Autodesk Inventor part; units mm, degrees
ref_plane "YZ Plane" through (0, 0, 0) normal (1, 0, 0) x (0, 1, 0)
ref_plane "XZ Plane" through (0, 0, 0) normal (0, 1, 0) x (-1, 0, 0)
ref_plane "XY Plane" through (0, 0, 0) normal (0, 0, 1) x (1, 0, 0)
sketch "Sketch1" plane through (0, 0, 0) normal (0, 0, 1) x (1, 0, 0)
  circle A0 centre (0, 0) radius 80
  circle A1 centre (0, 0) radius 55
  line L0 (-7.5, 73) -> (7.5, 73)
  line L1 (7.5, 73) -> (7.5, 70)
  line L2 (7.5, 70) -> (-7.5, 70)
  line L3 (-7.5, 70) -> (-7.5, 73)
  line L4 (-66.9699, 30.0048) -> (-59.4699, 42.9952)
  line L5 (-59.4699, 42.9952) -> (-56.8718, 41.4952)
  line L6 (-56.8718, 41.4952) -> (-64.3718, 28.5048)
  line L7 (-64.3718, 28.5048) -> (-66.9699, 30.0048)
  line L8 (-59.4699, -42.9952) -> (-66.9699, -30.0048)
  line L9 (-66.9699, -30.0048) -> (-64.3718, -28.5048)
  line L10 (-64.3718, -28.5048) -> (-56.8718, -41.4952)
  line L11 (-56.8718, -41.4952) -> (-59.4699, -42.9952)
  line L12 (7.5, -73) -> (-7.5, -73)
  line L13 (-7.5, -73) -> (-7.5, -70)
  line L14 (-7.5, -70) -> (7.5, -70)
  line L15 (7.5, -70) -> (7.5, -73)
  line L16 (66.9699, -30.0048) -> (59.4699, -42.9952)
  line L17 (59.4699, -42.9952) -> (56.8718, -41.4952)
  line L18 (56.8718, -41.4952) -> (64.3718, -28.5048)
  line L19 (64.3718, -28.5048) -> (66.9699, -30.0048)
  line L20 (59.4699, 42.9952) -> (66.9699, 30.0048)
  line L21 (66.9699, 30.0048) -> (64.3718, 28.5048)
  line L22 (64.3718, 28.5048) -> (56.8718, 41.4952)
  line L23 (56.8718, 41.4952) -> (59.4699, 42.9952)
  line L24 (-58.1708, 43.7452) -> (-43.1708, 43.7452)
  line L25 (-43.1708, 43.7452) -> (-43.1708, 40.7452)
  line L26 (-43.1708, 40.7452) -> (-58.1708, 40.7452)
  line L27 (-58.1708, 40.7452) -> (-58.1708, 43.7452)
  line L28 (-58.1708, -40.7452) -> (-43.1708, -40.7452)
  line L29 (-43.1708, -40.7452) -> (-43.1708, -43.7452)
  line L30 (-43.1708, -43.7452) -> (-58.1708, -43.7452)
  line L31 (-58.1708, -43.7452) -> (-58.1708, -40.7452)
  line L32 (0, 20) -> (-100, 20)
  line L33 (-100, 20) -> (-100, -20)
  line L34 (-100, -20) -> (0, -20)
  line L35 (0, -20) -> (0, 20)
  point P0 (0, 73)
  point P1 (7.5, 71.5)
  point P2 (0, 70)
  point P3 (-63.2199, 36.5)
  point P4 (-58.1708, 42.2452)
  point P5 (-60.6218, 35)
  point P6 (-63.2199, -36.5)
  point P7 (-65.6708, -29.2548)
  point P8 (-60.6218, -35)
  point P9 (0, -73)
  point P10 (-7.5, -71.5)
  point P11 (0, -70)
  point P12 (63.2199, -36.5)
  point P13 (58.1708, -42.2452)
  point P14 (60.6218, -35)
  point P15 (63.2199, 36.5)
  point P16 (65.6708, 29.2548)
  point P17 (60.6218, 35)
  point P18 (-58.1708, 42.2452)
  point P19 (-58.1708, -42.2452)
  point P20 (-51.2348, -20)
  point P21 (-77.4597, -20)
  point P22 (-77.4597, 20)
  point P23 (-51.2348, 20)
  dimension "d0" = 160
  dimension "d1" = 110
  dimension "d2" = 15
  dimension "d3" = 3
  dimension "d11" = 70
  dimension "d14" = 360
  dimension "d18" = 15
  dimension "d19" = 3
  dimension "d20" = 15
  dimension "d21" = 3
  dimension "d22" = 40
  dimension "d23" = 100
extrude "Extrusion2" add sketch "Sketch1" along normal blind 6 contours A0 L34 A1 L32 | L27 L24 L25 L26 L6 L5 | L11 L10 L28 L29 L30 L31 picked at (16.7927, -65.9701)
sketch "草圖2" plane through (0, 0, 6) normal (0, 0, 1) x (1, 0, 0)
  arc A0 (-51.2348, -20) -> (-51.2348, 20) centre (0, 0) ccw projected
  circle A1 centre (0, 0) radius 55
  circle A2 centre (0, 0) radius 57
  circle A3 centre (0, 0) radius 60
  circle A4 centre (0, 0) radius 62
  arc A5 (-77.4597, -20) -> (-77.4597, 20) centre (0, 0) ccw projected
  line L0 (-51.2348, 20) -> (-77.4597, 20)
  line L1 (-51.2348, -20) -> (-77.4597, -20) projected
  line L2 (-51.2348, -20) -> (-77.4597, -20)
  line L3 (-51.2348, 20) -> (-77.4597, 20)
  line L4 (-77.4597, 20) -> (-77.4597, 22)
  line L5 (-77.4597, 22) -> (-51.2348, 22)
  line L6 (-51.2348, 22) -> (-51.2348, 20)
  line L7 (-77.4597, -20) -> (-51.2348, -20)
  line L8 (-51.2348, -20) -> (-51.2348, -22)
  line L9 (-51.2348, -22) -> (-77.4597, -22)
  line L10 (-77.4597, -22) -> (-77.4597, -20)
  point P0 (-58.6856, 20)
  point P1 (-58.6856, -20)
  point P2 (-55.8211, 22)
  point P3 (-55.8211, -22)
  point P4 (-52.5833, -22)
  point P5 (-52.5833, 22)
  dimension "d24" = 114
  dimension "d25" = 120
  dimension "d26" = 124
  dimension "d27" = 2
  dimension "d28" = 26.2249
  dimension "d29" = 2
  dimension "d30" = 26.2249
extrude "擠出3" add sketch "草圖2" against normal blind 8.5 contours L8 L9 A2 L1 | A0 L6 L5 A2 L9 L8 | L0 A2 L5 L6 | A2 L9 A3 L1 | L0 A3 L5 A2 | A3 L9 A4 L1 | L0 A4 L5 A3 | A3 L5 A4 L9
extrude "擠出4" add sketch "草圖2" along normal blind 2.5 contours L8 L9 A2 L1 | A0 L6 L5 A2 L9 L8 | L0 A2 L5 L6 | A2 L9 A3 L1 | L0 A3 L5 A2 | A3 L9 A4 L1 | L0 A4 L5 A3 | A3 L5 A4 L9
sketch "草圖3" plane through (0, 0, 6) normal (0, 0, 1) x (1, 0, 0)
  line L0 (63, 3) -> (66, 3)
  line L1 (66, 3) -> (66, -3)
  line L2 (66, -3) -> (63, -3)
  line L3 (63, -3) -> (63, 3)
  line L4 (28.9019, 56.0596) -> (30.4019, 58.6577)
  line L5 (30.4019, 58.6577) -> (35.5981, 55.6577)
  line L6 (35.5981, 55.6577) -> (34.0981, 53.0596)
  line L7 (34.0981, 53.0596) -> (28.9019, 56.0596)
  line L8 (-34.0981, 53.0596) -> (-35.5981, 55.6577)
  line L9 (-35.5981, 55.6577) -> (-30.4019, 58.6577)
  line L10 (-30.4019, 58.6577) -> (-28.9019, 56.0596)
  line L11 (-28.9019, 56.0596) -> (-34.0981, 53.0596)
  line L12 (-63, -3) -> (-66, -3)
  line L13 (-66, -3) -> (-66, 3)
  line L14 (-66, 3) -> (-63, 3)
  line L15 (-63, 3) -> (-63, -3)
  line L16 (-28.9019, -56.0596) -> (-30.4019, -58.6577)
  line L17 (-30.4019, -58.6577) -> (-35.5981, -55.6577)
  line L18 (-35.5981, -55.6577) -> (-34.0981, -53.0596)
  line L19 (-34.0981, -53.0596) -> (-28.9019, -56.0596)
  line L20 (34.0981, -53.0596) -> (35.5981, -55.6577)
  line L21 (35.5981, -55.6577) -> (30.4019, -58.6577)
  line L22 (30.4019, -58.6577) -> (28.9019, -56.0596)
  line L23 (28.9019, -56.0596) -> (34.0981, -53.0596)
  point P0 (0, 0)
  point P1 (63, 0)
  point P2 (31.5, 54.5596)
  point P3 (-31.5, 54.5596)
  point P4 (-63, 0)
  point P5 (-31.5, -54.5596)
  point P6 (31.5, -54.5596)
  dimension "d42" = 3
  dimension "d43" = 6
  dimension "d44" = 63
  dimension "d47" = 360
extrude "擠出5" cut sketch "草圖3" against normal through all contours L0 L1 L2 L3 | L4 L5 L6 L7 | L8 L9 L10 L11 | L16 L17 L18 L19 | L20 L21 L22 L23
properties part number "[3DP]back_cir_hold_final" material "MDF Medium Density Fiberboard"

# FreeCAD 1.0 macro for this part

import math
import FreeCAD as App
import Part
import Sketcher
from FreeCAD import Vector
Q = App.Units.Quantity


def add_polygon(sketch, points):
    """Adds a closed chain of lines whose ends are joined by coincident constraints."""
    first, n = sketch.GeometryCount, len(points)
    for a, b in zip(points, points[1:] + points[:1]):
        sketch.addGeometry(Part.LineSegment(App.Vector(*a, 0), App.Vector(*b, 0)), False)
    for i in range(n):
        sketch.addConstraint(Sketcher.Constraint("Coincident", first + i, 2, first + (i + 1) % n, 1))

doc = App.newDocument("Part")
params = doc.addObject("Spreadsheet::Sheet", "Params")
for row, (alias, value) in enumerate([
    ("sketch1_radius", "80 mm"),
    ("sketch1_radius2", "55 mm"),
    ("sketch1_width", "15 mm"),
    ("sketch1_height", "3 mm"),
    ("sketch1_length", "15 mm"),
    ("pad1_length", "6 mm"),
    ("sketch2_radius", "62 mm"),
    ("sketch2_radius2", "60 mm"),
    ("sketch2_radius3", "57 mm"),
    ("sketch2_radius4", "55 mm"),
    ("pad2_length", "8.5 mm"),
    ("sketch3_radius", "62 mm"),
    ("sketch3_radius2", "60 mm"),
    ("sketch3_radius3", "57 mm"),
    ("sketch3_radius4", "55 mm"),
    ("pad3_length", "2.5 mm"),
    ("sketch4_width", "3 mm"),
    ("sketch4_height", "6 mm"),
    ("sketch4_length", "3 mm"),
    ("sketch4_length2", "6 mm"),
], start=1):
    params.set(f"A{row}", alias)
    params.set(f"B{row}", "=" + value)
    params.setAlias(f"B{row}", alias)

body = doc.addObject("PartDesign::Body", "Body")

sketch1 = body.newObject("Sketcher::SketchObject", "Sketch")
sketch1.AttachmentSupport = (doc.getObject("XY_Plane"), [""])
sketch1.MapMode = "FlatFace"
sketch1.addGeometry(Part.ArcOfCircle(Part.Circle(Vector(0, 0, 0), Vector(0, 0, 1), 80), math.radians(-166), math.radians(166)), False)
sketch1.addGeometry(Part.LineSegment(Vector(-77.5, 20, 0), Vector(-51.2, 20, 0)), False)
sketch1.addGeometry(Part.ArcOfCircle(Part.Circle(Vector(0, 0, 0), Vector(0, 0, 1), 55), math.radians(-159), math.radians(159)), False)
sketch1.addGeometry(Part.LineSegment(Vector(-51.2, -20, 0), Vector(-77.5, -20, 0)), False)
add_polygon(sketch1, [(-59.5, -43), (-67, -30), (-64.4, -28.5), (-56.9, -41.5)])
add_polygon(sketch1, [(7.5, -70), (7.5, -73), (-7.5, -73), (-7.5, -70)])
add_polygon(sketch1, [(64.4, -28.5), (67, -30), (59.5, -43), (56.9, -41.5)])
add_polygon(sketch1, [(-64.4, 28.5), (-67, 30), (-59.5, 43), (-56.9, 41.5)])
add_polygon(sketch1, [(56.9, 41.5), (59.5, 43), (67, 30), (64.4, 28.5)])
add_polygon(sketch1, [(-7.5, 70), (-7.5, 73), (7.5, 73), (7.5, 70)])
sketch1.addConstraint(Sketcher.Constraint("Coincident", 0, 2, 1, 1))
sketch1.addConstraint(Sketcher.Constraint("Coincident", 1, 2, 2, 2))
sketch1.addConstraint(Sketcher.Constraint("Coincident", 2, 1, 3, 1))
sketch1.addConstraint(Sketcher.Constraint("Coincident", 3, 2, 0, 1))
sketch1.addConstraint(Sketcher.Constraint("Horizontal", 1))
sketch1.addConstraint(Sketcher.Constraint("Horizontal", 3))
sketch1.addConstraint(Sketcher.Constraint("Vertical", 8))
sketch1.addConstraint(Sketcher.Constraint("Horizontal", 9))
sketch1.addConstraint(Sketcher.Constraint("Vertical", 10))
sketch1.addConstraint(Sketcher.Constraint("Horizontal", 11))
sketch1.addConstraint(Sketcher.Constraint("Vertical", 24))
sketch1.addConstraint(Sketcher.Constraint("Horizontal", 25))
sketch1.addConstraint(Sketcher.Constraint("Vertical", 26))
sketch1.addConstraint(Sketcher.Constraint("Horizontal", 27))
sketch1.addConstraint(Sketcher.Constraint("Coincident", 0, 3, -1, 1))
sketch1.addConstraint(Sketcher.Constraint("Coincident", 2, 3, -1, 1))
sketch1.addConstraint(Sketcher.Constraint("Symmetric", 12, 2, 16, 2, -1, 1))
sketch1.addConstraint(Sketcher.Constraint("Symmetric", 13, 2, 17, 2, -1, 1))
sketch1.addConstraint(Sketcher.Constraint("Symmetric", 14, 2, 18, 2, -1, 1))
sketch1.addConstraint(Sketcher.Constraint("Symmetric", 15, 2, 19, 2, -1, 1))
sketch1.addConstraint(Sketcher.Constraint("Symmetric", 7, 2, 20, 2, -1, 1))
sketch1.addConstraint(Sketcher.Constraint("Symmetric", 4, 2, 21, 2, -1, 1))
sketch1.addConstraint(Sketcher.Constraint("Symmetric", 5, 2, 22, 2, -1, 1))
sketch1.addConstraint(Sketcher.Constraint("Symmetric", 6, 2, 23, 2, -1, 1))
sketch1.addConstraint(Sketcher.Constraint("Symmetric", 8, 2, 24, 2, -1, 1))
sketch1.addConstraint(Sketcher.Constraint("Symmetric", 10, 2, 26, 2, -1, 1))
sketch1.addConstraint(Sketcher.Constraint("Symmetric", 4, 2, 12, 2, -2))
sketch1.addConstraint(Sketcher.Constraint("Symmetric", 7, 2, 13, 2, -2))
sketch1.addConstraint(Sketcher.Constraint("Symmetric", 6, 2, 14, 2, -2))
sketch1.addConstraint(Sketcher.Constraint("Symmetric", 5, 2, 15, 2, -2))
sketch1.addConstraint(Sketcher.Constraint("Perpendicular", 4, 5))
sketch1.addConstraint(Sketcher.Constraint("Perpendicular", 5, 6))
sketch1.addConstraint(Sketcher.Constraint("Perpendicular", 6, 7))
sketch1.addConstraint(Sketcher.Constraint("Vertical", 1, 2, 2, 1))
sketch1.addConstraint(Sketcher.Constraint("Vertical", 10, 2, 24, 2))
sketch1.addConstraint(Sketcher.Constraint("Radius", 0, 80.0))
sketch1.addConstraint(Sketcher.Constraint("Radius", 2, 55.0))
sketch1.addConstraint(Sketcher.Constraint("DistanceX", 9, 2, 9, 1, 15.0))
sketch1.addConstraint(Sketcher.Constraint("DistanceY", 8, 2, 8, 1, 3.0))
sketch1.addConstraint(Sketcher.Constraint("Distance", 4, 15.0))
sketch1.addConstraint(Sketcher.Constraint("Distance", 5, 3.0))
sketch1.addConstraint(Sketcher.Constraint("DistanceY", 10, 2, -1, 1, 70.0))
sketch1.addConstraint(Sketcher.Constraint("DistanceY", 2, 1, 1, 2, 40.0))
sketch1.addConstraint(Sketcher.Constraint("DistanceY", 14, 2, 22, 2, 70.0))
sketch1.addConstraint(Sketcher.Constraint("Angle", 4, Q("120 deg")))
sketch1.addConstraint(Sketcher.Constraint("DistanceX", 4, 2, -1, 1, 66.97))
sketch1.setExpression("Constraints[59]", "Params.sketch1_radius")
sketch1.setExpression("Constraints[60]", "Params.sketch1_radius2")
sketch1.setExpression("Constraints[61]", "Params.sketch1_width")
sketch1.setExpression("Constraints[62]", "Params.sketch1_height")
sketch1.setExpression("Constraints[63]", "Params.sketch1_length")
pad1 = body.newObject("PartDesign::Pad", "Pad")
pad1.Profile = sketch1
pad1.setExpression("Length", "Params.pad1_length")

sketch2 = body.newObject("Sketcher::SketchObject", "Sketch001")
sketch2.AttachmentSupport = (doc.getObject("XY_Plane"), [""])
sketch2.MapMode = "FlatFace"
sketch2.AttachmentOffset = App.Placement(Vector(0, 0, 6), App.Rotation())
sketch2.addGeometry(Part.LineSegment(Vector(-51.2, -20, 0), Vector(-58.7, -20, 0)), False)
sketch2.addGeometry(Part.ArcOfCircle(Part.Circle(Vector(0, 0, 0), Vector(0, 0, 1), 62), math.radians(-161), math.radians(161)), False)
sketch2.addGeometry(Part.LineSegment(Vector(-58.7, 20, 0), Vector(-51.2, 20, 0)), False)
sketch2.addGeometry(Part.ArcOfCircle(Part.Circle(Vector(0, 0, 0), Vector(0, 0, 1), 55), math.radians(-159), math.radians(159)), False)
sketch2.addGeometry(Part.LineSegment(Vector(-52.6, 22, 0), Vector(-55.8, 22, 0)), False)
sketch2.addGeometry(Part.ArcOfCircle(Part.Circle(Vector(0, 0, 0), Vector(0, 0, 1), 60), math.radians(-158), math.radians(158)), False)
sketch2.addGeometry(Part.LineSegment(Vector(-55.8, -22, 0), Vector(-52.6, -22, 0)), False)
sketch2.addGeometry(Part.ArcOfCircle(Part.Circle(Vector(0, 0, 0), Vector(0, 0, 1), 57), math.radians(-157), math.radians(157)), False)
sketch2.addConstraint(Sketcher.Constraint("Coincident", 0, 2, 1, 1))
sketch2.addConstraint(Sketcher.Constraint("Coincident", 1, 2, 2, 1))
sketch2.addConstraint(Sketcher.Constraint("Coincident", 2, 2, 3, 2))
sketch2.addConstraint(Sketcher.Constraint("Coincident", 3, 1, 0, 1))
sketch2.addConstraint(Sketcher.Constraint("Coincident", 4, 2, 5, 2))
sketch2.addConstraint(Sketcher.Constraint("Coincident", 5, 1, 6, 1))
sketch2.addConstraint(Sketcher.Constraint("Coincident", 6, 2, 7, 1))
sketch2.addConstraint(Sketcher.Constraint("Coincident", 7, 2, 4, 1))
sketch2.addConstraint(Sketcher.Constraint("Horizontal", 0))
sketch2.addConstraint(Sketcher.Constraint("Horizontal", 2))
sketch2.addConstraint(Sketcher.Constraint("Horizontal", 4))
sketch2.addConstraint(Sketcher.Constraint("Horizontal", 6))
sketch2.addConstraint(Sketcher.Constraint("Coincident", 1, 3, -1, 1))
sketch2.addConstraint(Sketcher.Constraint("Coincident", 3, 3, -1, 1))
sketch2.addConstraint(Sketcher.Constraint("Coincident", 5, 3, -1, 1))
sketch2.addConstraint(Sketcher.Constraint("Coincident", 7, 3, -1, 1))
sketch2.addConstraint(Sketcher.Constraint("Vertical", 0, 2, 1, 2))
sketch2.addConstraint(Sketcher.Constraint("Vertical", 4, 2, 5, 1))
sketch2.addConstraint(Sketcher.Constraint("Radius", 1, 62.0))
sketch2.addConstraint(Sketcher.Constraint("Radius", 5, 60.0))
sketch2.addConstraint(Sketcher.Constraint("Radius", 7, 57.0))
sketch2.addConstraint(Sketcher.Constraint("Radius", 3, 55.0))
sketch2.addConstraint(Sketcher.Constraint("DistanceY", 1, 2, 4, 2, 2.0))
sketch2.addConstraint(Sketcher.Constraint("DistanceY", 0, 2, -1, 1, 20.0))
sketch2.setExpression("Constraints[18]", "Params.sketch2_radius")
sketch2.setExpression("Constraints[19]", "Params.sketch2_radius2")
sketch2.setExpression("Constraints[20]", "Params.sketch2_radius3")
sketch2.setExpression("Constraints[21]", "Params.sketch2_radius4")
pad2 = body.newObject("PartDesign::Pad", "Pad001")
pad2.Profile = sketch2
pad2.setExpression("Length", "Params.pad2_length")
pad2.Reversed = True

sketch3 = body.newObject("Sketcher::SketchObject", "Sketch002")
sketch3.AttachmentSupport = (doc.getObject("XY_Plane"), [""])
sketch3.MapMode = "FlatFace"
sketch3.AttachmentOffset = App.Placement(Vector(0, 0, 6), App.Rotation())
sketch3.addGeometry(Part.LineSegment(Vector(-51.2, -20, 0), Vector(-58.7, -20, 0)), False)
sketch3.addGeometry(Part.ArcOfCircle(Part.Circle(Vector(0, 0, 0), Vector(0, 0, 1), 62), math.radians(-161), math.radians(161)), False)
sketch3.addGeometry(Part.LineSegment(Vector(-58.7, 20, 0), Vector(-51.2, 20, 0)), False)
sketch3.addGeometry(Part.ArcOfCircle(Part.Circle(Vector(0, 0, 0), Vector(0, 0, 1), 55), math.radians(-159), math.radians(159)), False)
sketch3.addGeometry(Part.LineSegment(Vector(-52.6, 22, 0), Vector(-55.8, 22, 0)), False)
sketch3.addGeometry(Part.ArcOfCircle(Part.Circle(Vector(0, 0, 0), Vector(0, 0, 1), 60), math.radians(-158), math.radians(158)), False)
sketch3.addGeometry(Part.LineSegment(Vector(-55.8, -22, 0), Vector(-52.6, -22, 0)), False)
sketch3.addGeometry(Part.ArcOfCircle(Part.Circle(Vector(0, 0, 0), Vector(0, 0, 1), 57), math.radians(-157), math.radians(157)), False)
sketch3.addConstraint(Sketcher.Constraint("Coincident", 0, 2, 1, 1))
sketch3.addConstraint(Sketcher.Constraint("Coincident", 1, 2, 2, 1))
sketch3.addConstraint(Sketcher.Constraint("Coincident", 2, 2, 3, 2))
sketch3.addConstraint(Sketcher.Constraint("Coincident", 3, 1, 0, 1))
sketch3.addConstraint(Sketcher.Constraint("Coincident", 4, 2, 5, 2))
sketch3.addConstraint(Sketcher.Constraint("Coincident", 5, 1, 6, 1))
sketch3.addConstraint(Sketcher.Constraint("Coincident", 6, 2, 7, 1))
sketch3.addConstraint(Sketcher.Constraint("Coincident", 7, 2, 4, 1))
sketch3.addConstraint(Sketcher.Constraint("Horizontal", 0))
sketch3.addConstraint(Sketcher.Constraint("Horizontal", 2))
sketch3.addConstraint(Sketcher.Constraint("Horizontal", 4))
sketch3.addConstraint(Sketcher.Constraint("Horizontal", 6))
sketch3.addConstraint(Sketcher.Constraint("Coincident", 1, 3, -1, 1))
sketch3.addConstraint(Sketcher.Constraint("Coincident", 3, 3, -1, 1))
sketch3.addConstraint(Sketcher.Constraint("Coincident", 5, 3, -1, 1))
sketch3.addConstraint(Sketcher.Constraint("Coincident", 7, 3, -1, 1))
sketch3.addConstraint(Sketcher.Constraint("Vertical", 0, 2, 1, 2))
sketch3.addConstraint(Sketcher.Constraint("Vertical", 4, 2, 5, 1))
sketch3.addConstraint(Sketcher.Constraint("Radius", 1, 62.0))
sketch3.addConstraint(Sketcher.Constraint("Radius", 5, 60.0))
sketch3.addConstraint(Sketcher.Constraint("Radius", 7, 57.0))
sketch3.addConstraint(Sketcher.Constraint("Radius", 3, 55.0))
sketch3.addConstraint(Sketcher.Constraint("DistanceY", 1, 2, 4, 2, 2.0))
sketch3.addConstraint(Sketcher.Constraint("DistanceY", 0, 2, -1, 1, 20.0))
sketch3.setExpression("Constraints[18]", "Params.sketch3_radius")
sketch3.setExpression("Constraints[19]", "Params.sketch3_radius2")
sketch3.setExpression("Constraints[20]", "Params.sketch3_radius3")
sketch3.setExpression("Constraints[21]", "Params.sketch3_radius4")
pad3 = body.newObject("PartDesign::Pad", "Pad002")
pad3.Profile = sketch3
pad3.setExpression("Length", "Params.pad3_length")

sketch4 = body.newObject("Sketcher::SketchObject", "Sketch003")
sketch4.AttachmentSupport = (doc.getObject("XY_Plane"), [""])
sketch4.MapMode = "FlatFace"
sketch4.AttachmentOffset = App.Placement(Vector(0, 0, 6), App.Rotation())
add_polygon(sketch4, [(66, 3), (63, 3), (63, -3), (66, -3)])
add_polygon(sketch4, [(30.4, 58.7), (28.9, 56.1), (34.1, 53.1), (35.6, 55.7)])
add_polygon(sketch4, [(-35.6, 55.7), (-34.1, 53.1), (-28.9, 56.1), (-30.4, 58.7)])
add_polygon(sketch4, [(-30.4, -58.7), (-28.9, -56.1), (-34.1, -53.1), (-35.6, -55.7)])
add_polygon(sketch4, [(35.6, -55.7), (34.1, -53.1), (28.9, -56.1), (30.4, -58.7)])
sketch4.addConstraint(Sketcher.Constraint("Horizontal", 0))
sketch4.addConstraint(Sketcher.Constraint("Vertical", 1))
sketch4.addConstraint(Sketcher.Constraint("Horizontal", 2))
sketch4.addConstraint(Sketcher.Constraint("Vertical", 3))
sketch4.addConstraint(Sketcher.Constraint("Symmetric", 4, 2, 12, 2, -1, 1))
sketch4.addConstraint(Sketcher.Constraint("Symmetric", 5, 2, 13, 2, -1, 1))
sketch4.addConstraint(Sketcher.Constraint("Symmetric", 6, 2, 14, 2, -1, 1))
sketch4.addConstraint(Sketcher.Constraint("Symmetric", 7, 2, 15, 2, -1, 1))
sketch4.addConstraint(Sketcher.Constraint("Symmetric", 8, 2, 16, 2, -1, 1))
sketch4.addConstraint(Sketcher.Constraint("Symmetric", 9, 2, 17, 2, -1, 1))
sketch4.addConstraint(Sketcher.Constraint("Symmetric", 10, 2, 18, 2, -1, 1))
sketch4.addConstraint(Sketcher.Constraint("Symmetric", 11, 2, 19, 2, -1, 1))
sketch4.addConstraint(Sketcher.Constraint("Symmetric", 5, 2, 8, 2, -2))
sketch4.addConstraint(Sketcher.Constraint("Symmetric", 4, 2, 9, 2, -2))
sketch4.addConstraint(Sketcher.Constraint("Symmetric", 7, 2, 10, 2, -2))
sketch4.addConstraint(Sketcher.Constraint("Symmetric", 6, 2, 11, 2, -2))
sketch4.addConstraint(Sketcher.Constraint("Perpendicular", 4, 5))
sketch4.addConstraint(Sketcher.Constraint("Perpendicular", 5, 6))
sketch4.addConstraint(Sketcher.Constraint("Perpendicular", 6, 7))
sketch4.addConstraint(Sketcher.Constraint("DistanceX", 0, 2, 0, 1, 3.0))
sketch4.addConstraint(Sketcher.Constraint("DistanceY", 1, 2, 1, 1, 6.0))
sketch4.addConstraint(Sketcher.Constraint("Distance", 4, 3.0))
sketch4.addConstraint(Sketcher.Constraint("Distance", 5, 6.0))
sketch4.addConstraint(Sketcher.Constraint("DistanceX", -1, 1, 0, 2, 63.0))
sketch4.addConstraint(Sketcher.Constraint("DistanceY", -1, 1, 0, 2, 3.0))
sketch4.addConstraint(Sketcher.Constraint("DistanceY", 5, 2, 4, 2, 3.0))
sketch4.addConstraint(Sketcher.Constraint("DistanceX", 8, 2, 4, 2, 63.0))
sketch4.addConstraint(Sketcher.Constraint("DistanceY", -1, 1, 4, 2, 56.0596))
sketch4.setExpression("Constraints[39]", "Params.sketch4_width")
sketch4.setExpression("Constraints[40]", "Params.sketch4_height")
sketch4.setExpression("Constraints[41]", "Params.sketch4_length")
sketch4.setExpression("Constraints[42]", "Params.sketch4_length2")
pocket1 = body.newObject("PartDesign::Pocket", "Pocket")
pocket1.Profile = sketch4
pocket1.Type = "ThroughAll"

doc.recompute()
